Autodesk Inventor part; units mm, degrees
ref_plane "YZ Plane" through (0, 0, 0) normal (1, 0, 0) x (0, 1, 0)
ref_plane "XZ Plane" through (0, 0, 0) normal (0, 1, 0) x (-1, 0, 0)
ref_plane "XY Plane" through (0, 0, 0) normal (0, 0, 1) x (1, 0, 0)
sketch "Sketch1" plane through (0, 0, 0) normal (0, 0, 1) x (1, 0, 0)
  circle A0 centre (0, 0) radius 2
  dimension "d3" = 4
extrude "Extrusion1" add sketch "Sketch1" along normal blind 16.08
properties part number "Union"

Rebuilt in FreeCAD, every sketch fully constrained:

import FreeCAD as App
import Part
import Sketcher

V = App.Vector

doc = App.newDocument("Part")
body = doc.addObject("PartDesign::Body", "Body")

sketch1 = doc.addObject("Sketcher::SketchObject", "Sketch")
body.addObject(sketch1)
sketch1.AttachmentSupport = (doc.XY_Plane, [""])
sketch1.MapMode = "FlatFace"
sketch1.addGeometry(Part.Circle(V(0, 0, 0), V(0, 0, 1), 2), False)
sketch1.addConstraint([
    Sketcher.Constraint("Coincident", 0, 3, -1, 1),
    Sketcher.Constraint("Diameter", 0, 4.0),
])
pad1 = doc.addObject("PartDesign::Pad", "Pad")
body.addObject(pad1)
pad1.Profile = sketch1
pad1.Length = 16.08

doc.recompute()
